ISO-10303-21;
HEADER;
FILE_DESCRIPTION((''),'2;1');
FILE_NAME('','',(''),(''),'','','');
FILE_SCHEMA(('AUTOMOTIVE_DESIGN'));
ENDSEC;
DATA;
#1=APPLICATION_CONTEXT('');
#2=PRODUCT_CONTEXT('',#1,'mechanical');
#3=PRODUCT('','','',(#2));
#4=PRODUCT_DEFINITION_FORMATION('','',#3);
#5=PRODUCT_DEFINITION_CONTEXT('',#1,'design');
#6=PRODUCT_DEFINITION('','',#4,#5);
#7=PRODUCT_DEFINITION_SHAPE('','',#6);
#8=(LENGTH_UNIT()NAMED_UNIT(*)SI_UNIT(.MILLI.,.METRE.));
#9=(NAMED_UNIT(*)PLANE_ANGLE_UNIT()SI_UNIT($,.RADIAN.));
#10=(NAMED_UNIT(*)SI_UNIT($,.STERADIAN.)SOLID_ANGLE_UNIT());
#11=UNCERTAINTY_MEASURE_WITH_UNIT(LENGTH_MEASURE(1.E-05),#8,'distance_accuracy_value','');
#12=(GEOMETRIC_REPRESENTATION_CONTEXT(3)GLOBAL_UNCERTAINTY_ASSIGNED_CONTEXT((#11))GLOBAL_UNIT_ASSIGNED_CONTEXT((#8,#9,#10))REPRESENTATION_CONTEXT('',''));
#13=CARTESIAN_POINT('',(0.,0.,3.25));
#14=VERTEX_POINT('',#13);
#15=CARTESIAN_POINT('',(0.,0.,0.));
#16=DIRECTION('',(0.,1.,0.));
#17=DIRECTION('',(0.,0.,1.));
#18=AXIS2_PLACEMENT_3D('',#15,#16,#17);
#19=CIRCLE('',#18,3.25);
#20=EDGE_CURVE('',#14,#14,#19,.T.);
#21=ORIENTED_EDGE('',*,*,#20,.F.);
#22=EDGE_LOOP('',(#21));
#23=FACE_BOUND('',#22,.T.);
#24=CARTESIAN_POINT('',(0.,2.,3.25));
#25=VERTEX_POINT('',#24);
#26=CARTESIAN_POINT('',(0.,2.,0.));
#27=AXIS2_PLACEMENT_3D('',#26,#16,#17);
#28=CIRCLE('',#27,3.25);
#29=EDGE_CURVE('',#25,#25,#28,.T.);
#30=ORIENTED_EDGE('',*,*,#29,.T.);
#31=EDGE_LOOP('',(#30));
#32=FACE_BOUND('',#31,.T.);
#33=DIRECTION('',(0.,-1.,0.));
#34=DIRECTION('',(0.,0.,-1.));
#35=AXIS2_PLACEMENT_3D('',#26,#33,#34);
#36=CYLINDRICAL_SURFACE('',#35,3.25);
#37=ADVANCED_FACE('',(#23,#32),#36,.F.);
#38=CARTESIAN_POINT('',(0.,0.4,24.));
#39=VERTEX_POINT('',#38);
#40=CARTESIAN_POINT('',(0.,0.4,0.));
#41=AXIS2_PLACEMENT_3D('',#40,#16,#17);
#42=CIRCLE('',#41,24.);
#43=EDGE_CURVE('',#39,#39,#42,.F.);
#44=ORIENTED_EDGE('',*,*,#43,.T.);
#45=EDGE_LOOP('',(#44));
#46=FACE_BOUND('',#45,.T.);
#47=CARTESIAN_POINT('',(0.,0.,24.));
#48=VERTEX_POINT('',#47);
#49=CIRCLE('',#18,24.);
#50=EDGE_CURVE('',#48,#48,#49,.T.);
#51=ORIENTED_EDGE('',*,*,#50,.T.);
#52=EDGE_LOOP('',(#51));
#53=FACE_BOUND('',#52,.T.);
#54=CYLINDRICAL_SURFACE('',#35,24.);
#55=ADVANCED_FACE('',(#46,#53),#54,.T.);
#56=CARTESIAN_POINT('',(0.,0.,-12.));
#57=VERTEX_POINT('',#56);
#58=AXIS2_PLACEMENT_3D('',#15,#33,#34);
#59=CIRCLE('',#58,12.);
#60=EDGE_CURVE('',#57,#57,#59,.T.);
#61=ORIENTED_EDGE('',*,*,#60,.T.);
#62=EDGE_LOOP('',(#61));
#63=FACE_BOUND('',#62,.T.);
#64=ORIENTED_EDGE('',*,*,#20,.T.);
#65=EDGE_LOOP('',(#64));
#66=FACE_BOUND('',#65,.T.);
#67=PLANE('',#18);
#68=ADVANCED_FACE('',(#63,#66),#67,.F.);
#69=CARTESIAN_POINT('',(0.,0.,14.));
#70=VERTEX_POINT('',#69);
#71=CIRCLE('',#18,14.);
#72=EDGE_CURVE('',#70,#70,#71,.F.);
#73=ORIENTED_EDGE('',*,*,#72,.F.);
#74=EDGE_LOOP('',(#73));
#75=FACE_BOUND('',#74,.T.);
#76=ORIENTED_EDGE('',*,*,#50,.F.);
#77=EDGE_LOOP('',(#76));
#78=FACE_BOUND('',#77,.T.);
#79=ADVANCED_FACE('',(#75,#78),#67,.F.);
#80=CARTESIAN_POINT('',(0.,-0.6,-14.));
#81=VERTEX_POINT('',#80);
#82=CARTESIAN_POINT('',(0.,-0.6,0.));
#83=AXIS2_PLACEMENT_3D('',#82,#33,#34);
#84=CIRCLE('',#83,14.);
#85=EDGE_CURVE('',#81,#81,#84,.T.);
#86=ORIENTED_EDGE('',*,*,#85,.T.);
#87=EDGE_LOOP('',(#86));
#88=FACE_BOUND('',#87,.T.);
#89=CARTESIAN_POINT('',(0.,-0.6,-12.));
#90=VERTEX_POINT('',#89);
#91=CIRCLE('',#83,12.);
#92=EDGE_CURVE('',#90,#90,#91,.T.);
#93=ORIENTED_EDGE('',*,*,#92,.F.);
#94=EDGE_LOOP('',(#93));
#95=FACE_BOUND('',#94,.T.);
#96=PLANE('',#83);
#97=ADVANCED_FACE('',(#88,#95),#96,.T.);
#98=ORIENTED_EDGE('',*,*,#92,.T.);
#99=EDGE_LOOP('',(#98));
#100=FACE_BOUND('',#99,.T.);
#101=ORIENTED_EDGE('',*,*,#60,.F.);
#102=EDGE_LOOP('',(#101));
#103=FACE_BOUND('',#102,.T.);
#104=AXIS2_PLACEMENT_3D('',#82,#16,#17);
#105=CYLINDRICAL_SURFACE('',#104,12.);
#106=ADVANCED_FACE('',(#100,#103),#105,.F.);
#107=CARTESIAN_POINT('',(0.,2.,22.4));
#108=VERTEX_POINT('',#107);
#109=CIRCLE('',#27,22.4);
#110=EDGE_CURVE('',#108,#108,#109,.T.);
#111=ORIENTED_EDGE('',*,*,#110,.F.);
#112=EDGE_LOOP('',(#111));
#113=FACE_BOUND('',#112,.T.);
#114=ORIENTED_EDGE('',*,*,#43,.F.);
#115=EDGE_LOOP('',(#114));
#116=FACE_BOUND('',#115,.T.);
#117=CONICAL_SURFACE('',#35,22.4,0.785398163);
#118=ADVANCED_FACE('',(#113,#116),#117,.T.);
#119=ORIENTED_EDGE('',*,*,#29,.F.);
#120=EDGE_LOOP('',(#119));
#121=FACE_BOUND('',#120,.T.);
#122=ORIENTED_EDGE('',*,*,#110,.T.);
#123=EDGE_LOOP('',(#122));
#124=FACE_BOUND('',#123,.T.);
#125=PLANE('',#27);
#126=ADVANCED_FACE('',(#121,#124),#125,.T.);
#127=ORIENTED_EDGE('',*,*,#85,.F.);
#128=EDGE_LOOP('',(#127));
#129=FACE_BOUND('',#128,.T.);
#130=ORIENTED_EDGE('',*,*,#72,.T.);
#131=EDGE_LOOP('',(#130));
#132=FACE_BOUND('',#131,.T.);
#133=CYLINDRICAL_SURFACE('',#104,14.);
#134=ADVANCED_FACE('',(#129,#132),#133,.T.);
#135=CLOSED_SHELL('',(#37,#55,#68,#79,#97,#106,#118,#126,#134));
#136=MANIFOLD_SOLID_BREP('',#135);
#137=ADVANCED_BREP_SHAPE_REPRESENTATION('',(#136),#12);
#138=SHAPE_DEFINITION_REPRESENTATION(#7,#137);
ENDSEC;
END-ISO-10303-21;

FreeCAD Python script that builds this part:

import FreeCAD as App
import Part
import Sketcher
from FreeCAD import Vector
Q = App.Units.Quantity


def edges_at(feature, points):
    """Names of the edges that pass closest to the given points."""
    edges = feature.Shape.Edges
    near = lambda p: min(range(len(edges)), key=lambda i: edges[i].distToShape(Part.Vertex(*p))[0])
    return sorted({f"Edge{near(p) + 1}" for p in points})

doc = App.newDocument("Part")
body = doc.addObject("PartDesign::Body", "Body")

# Sketch on XZ plane
sketch1 = body.newObject("Sketcher::SketchObject", "Sketch")
sketch1.AttachmentSupport = (doc.getObject("XZ_Plane"), [""])
sketch1.MapMode = "FlatFace"
sketch1.addGeometry([
    Part.Circle(Vector(0, 0, 0), Vector(0, 0, 1), 24),
    Part.Circle(Vector(0, 0, 0), Vector(0, 0, 1), 3.2),
], False)
sketch1.addConstraint([
    Sketcher.Constraint("Coincident", 0, 3, -1, 1),
    Sketcher.Constraint("Coincident", 1, 3, -1, 1),
    Sketcher.Constraint("Diameter", 0, Q("48 mm")),
    Sketcher.Constraint("Diameter", 1, Q("6.5 mm")),
])
pad1 = body.newObject("PartDesign::Pad", "Pad")
pad1.Profile = sketch1
pad1.Length = 2
pad1.Reversed = True
doc.recompute()

chamfer = body.newObject("PartDesign::Chamfer", "Chamfer")
chamfer.Base = (pad1, edges_at(pad1, [(0, 2, -24)]))
chamfer.Size = 1.6

# Sketch on XZ plane
sketch2 = body.newObject("Sketcher::SketchObject", "Sketch001")
sketch2.AttachmentSupport = (doc.getObject("XZ_Plane"), [""])
sketch2.MapMode = "FlatFace"
sketch2.addGeometry([
    Part.Circle(Vector(0, 0, 0), Vector(0, 0, 1), 14),
    Part.Circle(Vector(0, 0, 0), Vector(0, 0, 1), 12),
], False)
sketch2.addConstraint([
    Sketcher.Constraint("Coincident", 0, 3, -1, 1),
    Sketcher.Constraint("Coincident", 1, 3, -1, 1),
    Sketcher.Constraint("Diameter", 0, Q("28 mm")),
    Sketcher.Constraint("Diameter", 1, Q("24 mm")),
])
pad2 = body.newObject("PartDesign::Pad", "Pad001")
pad2.Profile = sketch2
pad2.Length = 0.6

doc.recompute()
